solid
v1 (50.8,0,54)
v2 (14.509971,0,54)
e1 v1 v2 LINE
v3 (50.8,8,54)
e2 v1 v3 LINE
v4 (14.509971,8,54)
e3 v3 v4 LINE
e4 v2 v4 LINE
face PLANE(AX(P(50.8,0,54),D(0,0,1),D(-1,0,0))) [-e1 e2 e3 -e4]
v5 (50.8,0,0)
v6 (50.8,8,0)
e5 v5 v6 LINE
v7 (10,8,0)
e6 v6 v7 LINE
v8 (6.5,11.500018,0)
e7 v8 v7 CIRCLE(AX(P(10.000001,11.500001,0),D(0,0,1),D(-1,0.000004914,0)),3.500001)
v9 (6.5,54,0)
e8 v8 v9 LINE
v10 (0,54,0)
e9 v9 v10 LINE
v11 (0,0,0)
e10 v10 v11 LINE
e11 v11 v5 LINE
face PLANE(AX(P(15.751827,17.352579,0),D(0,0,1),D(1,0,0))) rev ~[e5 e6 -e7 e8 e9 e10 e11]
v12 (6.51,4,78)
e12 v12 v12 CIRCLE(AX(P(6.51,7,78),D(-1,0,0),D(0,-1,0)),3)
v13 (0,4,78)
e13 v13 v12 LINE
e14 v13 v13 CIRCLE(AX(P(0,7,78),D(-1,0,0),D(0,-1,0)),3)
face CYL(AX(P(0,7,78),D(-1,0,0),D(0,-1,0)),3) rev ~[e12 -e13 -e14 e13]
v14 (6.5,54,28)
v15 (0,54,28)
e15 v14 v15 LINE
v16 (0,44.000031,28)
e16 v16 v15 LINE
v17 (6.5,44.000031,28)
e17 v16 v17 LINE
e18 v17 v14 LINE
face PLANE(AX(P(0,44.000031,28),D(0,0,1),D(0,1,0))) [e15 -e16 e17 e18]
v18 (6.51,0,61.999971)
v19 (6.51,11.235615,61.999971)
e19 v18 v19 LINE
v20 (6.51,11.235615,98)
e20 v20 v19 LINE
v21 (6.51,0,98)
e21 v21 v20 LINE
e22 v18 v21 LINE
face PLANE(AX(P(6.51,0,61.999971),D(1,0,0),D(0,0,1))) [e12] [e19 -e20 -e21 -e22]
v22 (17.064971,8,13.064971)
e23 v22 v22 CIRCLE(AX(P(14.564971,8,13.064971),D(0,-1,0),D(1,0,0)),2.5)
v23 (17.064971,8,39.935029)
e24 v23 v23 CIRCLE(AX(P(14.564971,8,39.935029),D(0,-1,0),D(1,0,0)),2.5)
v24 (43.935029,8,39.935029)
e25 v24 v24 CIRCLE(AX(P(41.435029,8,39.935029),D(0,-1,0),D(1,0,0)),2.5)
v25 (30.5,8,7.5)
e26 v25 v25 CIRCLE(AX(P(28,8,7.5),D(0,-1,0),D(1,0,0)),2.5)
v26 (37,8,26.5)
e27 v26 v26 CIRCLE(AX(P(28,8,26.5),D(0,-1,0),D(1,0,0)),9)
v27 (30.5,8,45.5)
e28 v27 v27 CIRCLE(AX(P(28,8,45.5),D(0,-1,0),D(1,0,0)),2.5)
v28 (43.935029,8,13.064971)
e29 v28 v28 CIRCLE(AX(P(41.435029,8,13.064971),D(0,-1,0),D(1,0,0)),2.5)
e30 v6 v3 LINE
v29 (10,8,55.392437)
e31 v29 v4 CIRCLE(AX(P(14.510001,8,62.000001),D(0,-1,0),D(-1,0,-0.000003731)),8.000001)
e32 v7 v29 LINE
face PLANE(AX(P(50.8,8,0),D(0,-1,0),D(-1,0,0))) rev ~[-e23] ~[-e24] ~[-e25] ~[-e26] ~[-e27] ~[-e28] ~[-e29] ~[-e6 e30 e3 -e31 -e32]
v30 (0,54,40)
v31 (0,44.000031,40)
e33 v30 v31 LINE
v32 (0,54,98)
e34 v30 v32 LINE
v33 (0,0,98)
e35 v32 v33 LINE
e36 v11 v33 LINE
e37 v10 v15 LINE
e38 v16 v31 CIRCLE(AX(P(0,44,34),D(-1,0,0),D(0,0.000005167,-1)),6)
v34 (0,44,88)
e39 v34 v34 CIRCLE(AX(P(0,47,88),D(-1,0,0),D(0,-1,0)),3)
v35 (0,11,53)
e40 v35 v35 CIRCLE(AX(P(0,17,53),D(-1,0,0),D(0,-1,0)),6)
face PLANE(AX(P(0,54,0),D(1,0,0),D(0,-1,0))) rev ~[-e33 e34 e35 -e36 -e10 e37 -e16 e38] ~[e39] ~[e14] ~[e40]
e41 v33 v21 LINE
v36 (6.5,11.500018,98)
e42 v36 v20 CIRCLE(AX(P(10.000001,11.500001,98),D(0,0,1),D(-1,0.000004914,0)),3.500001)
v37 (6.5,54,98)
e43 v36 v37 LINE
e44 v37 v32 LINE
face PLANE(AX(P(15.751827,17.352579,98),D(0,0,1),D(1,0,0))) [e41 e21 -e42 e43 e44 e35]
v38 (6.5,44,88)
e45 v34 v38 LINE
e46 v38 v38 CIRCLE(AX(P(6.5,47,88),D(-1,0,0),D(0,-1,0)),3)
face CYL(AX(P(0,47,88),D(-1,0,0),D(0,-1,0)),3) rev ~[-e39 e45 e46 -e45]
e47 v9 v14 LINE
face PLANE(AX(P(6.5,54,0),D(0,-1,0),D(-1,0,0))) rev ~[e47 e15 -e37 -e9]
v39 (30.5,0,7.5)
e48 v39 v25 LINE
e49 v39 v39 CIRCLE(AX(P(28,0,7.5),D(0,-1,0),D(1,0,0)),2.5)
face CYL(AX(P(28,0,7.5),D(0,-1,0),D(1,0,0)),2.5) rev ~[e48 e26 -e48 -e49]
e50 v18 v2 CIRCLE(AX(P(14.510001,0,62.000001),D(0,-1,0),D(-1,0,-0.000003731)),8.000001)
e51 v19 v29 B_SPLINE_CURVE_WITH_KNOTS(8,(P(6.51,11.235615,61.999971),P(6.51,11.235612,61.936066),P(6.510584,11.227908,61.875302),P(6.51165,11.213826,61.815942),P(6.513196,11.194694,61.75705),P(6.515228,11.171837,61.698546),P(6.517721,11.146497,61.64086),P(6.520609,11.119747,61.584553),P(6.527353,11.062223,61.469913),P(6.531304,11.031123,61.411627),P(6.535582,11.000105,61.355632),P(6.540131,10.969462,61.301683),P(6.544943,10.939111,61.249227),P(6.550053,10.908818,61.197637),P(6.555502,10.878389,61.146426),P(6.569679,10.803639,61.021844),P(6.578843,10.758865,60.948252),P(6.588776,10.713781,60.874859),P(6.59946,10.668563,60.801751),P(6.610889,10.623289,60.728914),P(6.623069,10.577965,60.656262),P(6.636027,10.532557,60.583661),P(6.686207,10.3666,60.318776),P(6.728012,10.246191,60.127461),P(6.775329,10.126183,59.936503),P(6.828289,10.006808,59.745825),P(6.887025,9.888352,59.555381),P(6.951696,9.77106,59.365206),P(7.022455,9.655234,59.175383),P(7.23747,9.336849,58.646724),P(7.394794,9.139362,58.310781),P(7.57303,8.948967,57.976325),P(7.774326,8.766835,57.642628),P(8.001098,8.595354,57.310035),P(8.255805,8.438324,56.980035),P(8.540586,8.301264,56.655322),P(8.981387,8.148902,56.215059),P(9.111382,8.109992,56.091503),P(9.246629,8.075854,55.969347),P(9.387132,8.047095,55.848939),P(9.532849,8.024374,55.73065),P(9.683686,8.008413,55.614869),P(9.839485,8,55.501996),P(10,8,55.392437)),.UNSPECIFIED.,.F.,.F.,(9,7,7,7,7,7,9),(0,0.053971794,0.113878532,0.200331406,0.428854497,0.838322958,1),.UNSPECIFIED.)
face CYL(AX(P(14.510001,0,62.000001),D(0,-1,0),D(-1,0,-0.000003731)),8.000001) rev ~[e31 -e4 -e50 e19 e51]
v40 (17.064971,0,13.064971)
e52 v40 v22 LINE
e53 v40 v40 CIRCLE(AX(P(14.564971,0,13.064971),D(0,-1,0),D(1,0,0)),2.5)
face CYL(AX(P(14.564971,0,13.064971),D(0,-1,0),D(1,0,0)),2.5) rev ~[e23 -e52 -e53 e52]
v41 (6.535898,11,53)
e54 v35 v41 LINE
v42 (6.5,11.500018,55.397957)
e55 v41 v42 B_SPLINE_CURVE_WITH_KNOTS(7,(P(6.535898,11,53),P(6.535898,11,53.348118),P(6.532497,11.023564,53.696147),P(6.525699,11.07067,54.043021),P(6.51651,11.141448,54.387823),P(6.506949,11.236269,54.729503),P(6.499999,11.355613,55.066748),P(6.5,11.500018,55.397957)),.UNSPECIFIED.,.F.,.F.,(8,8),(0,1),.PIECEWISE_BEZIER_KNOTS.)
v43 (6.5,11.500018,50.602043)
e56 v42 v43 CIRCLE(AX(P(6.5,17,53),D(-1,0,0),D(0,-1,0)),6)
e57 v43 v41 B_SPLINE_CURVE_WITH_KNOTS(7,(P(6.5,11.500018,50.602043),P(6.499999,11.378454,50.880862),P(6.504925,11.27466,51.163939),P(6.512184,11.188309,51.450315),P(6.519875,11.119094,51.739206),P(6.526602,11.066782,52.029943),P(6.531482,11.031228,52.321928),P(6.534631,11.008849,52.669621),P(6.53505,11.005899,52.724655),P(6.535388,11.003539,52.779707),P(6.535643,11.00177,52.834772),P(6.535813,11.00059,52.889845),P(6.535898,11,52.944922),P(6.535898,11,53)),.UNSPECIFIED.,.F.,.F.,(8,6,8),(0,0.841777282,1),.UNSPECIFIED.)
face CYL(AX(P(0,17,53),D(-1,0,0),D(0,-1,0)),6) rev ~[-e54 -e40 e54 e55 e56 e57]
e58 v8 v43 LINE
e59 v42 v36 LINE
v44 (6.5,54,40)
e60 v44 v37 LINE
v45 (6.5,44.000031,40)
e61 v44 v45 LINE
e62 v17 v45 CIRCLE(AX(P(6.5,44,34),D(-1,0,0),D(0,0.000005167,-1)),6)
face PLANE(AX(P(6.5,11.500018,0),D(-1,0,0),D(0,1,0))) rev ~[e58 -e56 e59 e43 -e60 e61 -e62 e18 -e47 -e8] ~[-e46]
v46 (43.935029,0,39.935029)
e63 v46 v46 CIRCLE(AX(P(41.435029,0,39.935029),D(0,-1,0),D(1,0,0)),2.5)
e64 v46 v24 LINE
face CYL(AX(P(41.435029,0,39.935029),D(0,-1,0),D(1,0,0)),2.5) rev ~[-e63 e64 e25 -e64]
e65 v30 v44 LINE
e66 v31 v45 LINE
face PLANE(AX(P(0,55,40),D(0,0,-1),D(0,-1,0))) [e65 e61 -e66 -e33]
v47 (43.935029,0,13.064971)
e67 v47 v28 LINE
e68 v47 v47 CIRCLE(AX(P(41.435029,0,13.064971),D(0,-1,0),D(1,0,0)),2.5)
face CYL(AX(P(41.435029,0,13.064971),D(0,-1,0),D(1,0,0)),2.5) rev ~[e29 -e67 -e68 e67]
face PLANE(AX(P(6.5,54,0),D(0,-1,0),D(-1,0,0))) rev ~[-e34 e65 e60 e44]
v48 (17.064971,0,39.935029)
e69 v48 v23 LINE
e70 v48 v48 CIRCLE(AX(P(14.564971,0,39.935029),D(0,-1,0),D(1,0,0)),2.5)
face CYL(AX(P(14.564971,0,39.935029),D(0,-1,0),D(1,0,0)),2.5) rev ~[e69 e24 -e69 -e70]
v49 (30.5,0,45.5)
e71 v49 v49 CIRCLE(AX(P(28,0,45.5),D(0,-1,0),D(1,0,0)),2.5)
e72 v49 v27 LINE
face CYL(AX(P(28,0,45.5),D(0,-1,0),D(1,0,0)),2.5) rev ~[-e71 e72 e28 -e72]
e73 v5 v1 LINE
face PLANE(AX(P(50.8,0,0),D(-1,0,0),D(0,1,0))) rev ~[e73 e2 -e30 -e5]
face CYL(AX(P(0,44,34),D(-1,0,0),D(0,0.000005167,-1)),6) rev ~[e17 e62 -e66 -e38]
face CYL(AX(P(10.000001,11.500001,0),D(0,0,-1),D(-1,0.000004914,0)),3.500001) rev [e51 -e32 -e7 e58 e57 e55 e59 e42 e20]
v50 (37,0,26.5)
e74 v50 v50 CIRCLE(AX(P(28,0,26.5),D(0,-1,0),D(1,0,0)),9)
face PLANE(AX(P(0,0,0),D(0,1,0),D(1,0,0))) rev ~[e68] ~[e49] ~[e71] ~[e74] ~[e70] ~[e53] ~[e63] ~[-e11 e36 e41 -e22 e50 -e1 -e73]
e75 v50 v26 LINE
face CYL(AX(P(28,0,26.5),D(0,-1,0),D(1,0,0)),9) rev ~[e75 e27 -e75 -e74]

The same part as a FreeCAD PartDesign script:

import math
import FreeCAD as App
import Part
import Sketcher
from FreeCAD import Vector

doc = App.newDocument("Part")
body = doc.addObject("PartDesign::Body", "Body")

# Sketch on XY plane
sketch1 = body.newObject("Sketcher::SketchObject", "Sketch")
sketch1.AttachmentSupport = (doc.getObject("XY_Plane"), [""])
sketch1.MapMode = "FlatFace"
sketch1.addGeometry([
    Part.LineSegment(Vector(6.5, 11.5, 0), Vector(6.5, 54, 0)),  # 0
    Part.LineSegment(Vector(6.5, 54, 0), Vector(0, 54, 0)),  # 1
    Part.LineSegment(Vector(0, 54, 0), Vector(0, 0, 0)),  # 2
    Part.LineSegment(Vector(0, 0, 0), Vector(50.8, 0, 0)),  # 3
    Part.LineSegment(Vector(50.8, 0, 0), Vector(50.8, 8, 0)),  # 4
    Part.LineSegment(Vector(50.8, 8, 0), Vector(10, 8, 0)),  # 5
    Part.ArcOfCircle(Part.Circle(Vector(10, 11.5, 0), Vector(0, 0, 1), 3.5), math.radians(180), math.radians(270)),  # 6
], False)
sketch1.addConstraint([
    Sketcher.Constraint("Coincident", 0, 2, 1, 1),
    Sketcher.Constraint("Coincident", 1, 2, 2, 1),
    Sketcher.Constraint("Coincident", 2, 2, 3, 1),
    Sketcher.Constraint("Coincident", 3, 2, 4, 1),
    Sketcher.Constraint("Coincident", 4, 2, 5, 1),
    Sketcher.Constraint("Tangent", 5, 2, 6, 2),
    Sketcher.Constraint("Coincident", 6, 1, 0, 1),
    Sketcher.Constraint("Vertical", 0),
    Sketcher.Constraint("Horizontal", 1),
    Sketcher.Constraint("Vertical", 2),
    Sketcher.Constraint("Horizontal", 3),
    Sketcher.Constraint("Vertical", 4),
    Sketcher.Constraint("Horizontal", 5),
    Sketcher.Constraint("Coincident", 2, 2, -1, 1),
    Sketcher.Constraint("Radius", 6, 3.500001),
    Sketcher.Constraint("DistanceY", 2, 2, 2, 1, 54.0),
    Sketcher.Constraint("DistanceY", 4, 1, 4, 2, 8.0),
    Sketcher.Constraint("DistanceX", 1, 2, 1, 1, 6.5),
    Sketcher.Constraint("DistanceX", 3, 1, 3, 2, 50.8),
    Sketcher.Constraint("DistanceY", 0, 1, 0, 2, 42.499982),
])
pad1 = body.newObject("PartDesign::Pad", "Pad")
pad1.Profile = sketch1
pad1.Length = 98

# Sketch on YZ plane
sketch2 = body.newObject("Sketcher::SketchObject", "Sketch001")
sketch2.AttachmentSupport = (doc.getObject("YZ_Plane"), [""])
sketch2.MapMode = "FlatFace"
sketch2.addGeometry([
    Part.Circle(Vector(47, 88, 0), Vector(0, 0, 1), 3),  # 0
    Part.Circle(Vector(7, 78, 0), Vector(0, 0, 1), 3),  # 1
    Part.Circle(Vector(17, 53, 0), Vector(0, 0, 1), 6),  # 2
    Part.LineSegment(Vector(55, 28, 0), Vector(44, 28, 0)),  # 3
    Part.ArcOfCircle(Part.Circle(Vector(44, 34, 0), Vector(0, 0, 1), 6), math.radians(90), math.radians(270)),  # 4
    Part.LineSegment(Vector(44, 40, 0), Vector(55, 40, 0)),  # 5
    Part.LineSegment(Vector(55, 40, 0), Vector(55, 28, 0)),  # 6
], False)
sketch2.addConstraint([
    Sketcher.Constraint("Coincident", 3, 2, 4, 2),
    Sketcher.Constraint("Coincident", 4, 1, 5, 1),
    Sketcher.Constraint("Coincident", 5, 2, 6, 1),
    Sketcher.Constraint("Coincident", 6, 2, 3, 1),
    Sketcher.Constraint("Horizontal", 3),
    Sketcher.Constraint("Horizontal", 5),
    Sketcher.Constraint("Vertical", 6),
    Sketcher.Constraint("Equal", 0, 1),
    Sketcher.Constraint("Equal", 2, 4),
    Sketcher.Constraint("Vertical", 3, 2, 4, 1),
    Sketcher.Constraint("Diameter", 0, 6.0),
    Sketcher.Constraint("Diameter", 2, 12.0),
    Sketcher.Constraint("DistanceX", -1, 1, 0, 3, 47.0),
    Sketcher.Constraint("DistanceY", -1, 1, 0, 3, 88.0),
    Sketcher.Constraint("DistanceX", -1, 1, 1, 3, 7.0),
    Sketcher.Constraint("DistanceY", -1, 1, 1, 3, 78.0),
    Sketcher.Constraint("DistanceX", -1, 1, 2, 3, 17.0),
    Sketcher.Constraint("DistanceY", -1, 1, 2, 3, 53.0),
    Sketcher.Constraint("DistanceX", -1, 1, 4, 3, 44.0),
    Sketcher.Constraint("DistanceY", -1, 1, 4, 3, 34.0),
    Sketcher.Constraint("DistanceX", -1, 1, 5, 2, 55.0),
    Sketcher.Constraint("DistanceX", 3, 2, 3, 1, 10.999969),
])
pocket1 = body.newObject("PartDesign::Pocket", "Pocket")
pocket1.Profile = sketch2
pocket1.Length = 7
pocket1.Reversed = True

# Sketch on XZ plane
sketch3 = body.newObject("Sketcher::SketchObject", "Sketch002")
sketch3.AttachmentSupport = (doc.getObject("XZ_Plane"), [""])
sketch3.MapMode = "FlatFace"
sketch3.addGeometry([
    Part.Circle(Vector(28, 26.5, 0), Vector(0, 0, 1), 9),  # 0
    Part.Circle(Vector(14.6, 39.9, 0), Vector(0, 0, 1), 2.5),  # 1
    Part.Circle(Vector(28, 45.5, 0), Vector(0, 0, 1), 2.5),  # 2
    Part.Circle(Vector(41.4, 39.9, 0), Vector(0, 0, 1), 2.5),  # 3
    Part.Circle(Vector(14.6, 13.1, 0), Vector(0, 0, 1), 2.5),  # 4
    Part.Circle(Vector(28, 7.5, 0), Vector(0, 0, 1), 2.5),  # 5
    Part.Circle(Vector(41.4, 13.1, 0), Vector(0, 0, 1), 2.5),  # 6
    Part.LineSegment(Vector(6.5, 98, 0), Vector(6.5, 62, 0)),  # 7
    Part.ArcOfCircle(Part.Circle(Vector(14.5, 62, 0), Vector(0, 0, 1), 8), math.radians(-180), math.radians(-90)),  # 8
    Part.LineSegment(Vector(14.5, 54, 0), Vector(50.8, 54, 0)),  # 9
    Part.LineSegment(Vector(50.8, 54, 0), Vector(50.8, 98, 0)),  # 10
    Part.LineSegment(Vector(50.8, 98, 0), Vector(6.5, 98, 0)),  # 11
], False)
sketch3.addConstraint([
    Sketcher.Constraint("Coincident", 7, 2, 8, 1),
    Sketcher.Constraint("Coincident", 8, 2, 9, 1),
    Sketcher.Constraint("Coincident", 9, 2, 10, 1),
    Sketcher.Constraint("Coincident", 10, 2, 11, 1),
    Sketcher.Constraint("Coincident", 11, 2, 7, 1),
    Sketcher.Constraint("Vertical", 7),
    Sketcher.Constraint("Horizontal", 9),
    Sketcher.Constraint("Vertical", 10),
    Sketcher.Constraint("Horizontal", 11),
    Sketcher.Constraint("Equal", 1, 2),
    Sketcher.Constraint("Equal", 2, 3),
    Sketcher.Constraint("Equal", 3, 4),
    Sketcher.Constraint("Equal", 4, 5),
    Sketcher.Constraint("Equal", 5, 6),
    Sketcher.Constraint("Horizontal", 1, 3, 3, 3),
    Sketcher.Constraint("Horizontal", 4, 3, 6, 3),
    Sketcher.Constraint("Vertical", 0, 3, 2, 3),
    Sketcher.Constraint("Vertical", 1, 3, 4, 3),
    Sketcher.Constraint("Vertical", 2, 3, 5, 3),
    Sketcher.Constraint("Vertical", 3, 3, 6, 3),
    Sketcher.Constraint("Diameter", 0, 18.0),
    Sketcher.Constraint("Diameter", 1, 5.0),
    Sketcher.Constraint("Radius", 8, 8.000001),
    Sketcher.Constraint("DistanceY", 10, 1, 10, 2, 44.0),
    Sketcher.Constraint("DistanceX", -1, 1, 0, 3, 28.0),
    Sketcher.Constraint("DistanceY", -1, 1, 8, 3, 62.000001),
    Sketcher.Constraint("DistanceY", 0, 3, 2, 3, 19.0),
    Sketcher.Constraint("DistanceY", 5, 3, 0, 3, 19.0),
    Sketcher.Constraint("DistanceX", 11, 2, 11, 1, 44.29),
    Sketcher.Constraint("DistanceY", -1, 1, 0, 3, 26.5),
    Sketcher.Constraint("DistanceX", -1, 1, 9, 2, 50.8),
    Sketcher.Constraint("DistanceX", 8, 2, 1, 3, 0.055),
    Sketcher.Constraint("DistanceX", 9, 1, 9, 2, 36.290029),
    Sketcher.Constraint("DistanceY", 7, 2, 7, 1, 36.000029),
    Sketcher.Constraint("DistanceY", -1, 1, 1, 3, 39.935029),
    Sketcher.Constraint("DistanceX", -1, 1, 3, 3, 41.435029),
    Sketcher.Constraint("DistanceY", -1, 1, 4, 3, 13.064971),
])
pocket2 = body.newObject("PartDesign::Pocket", "Pocket001")
pocket2.Profile = sketch3
pocket2.Length = 12

doc.recompute()
